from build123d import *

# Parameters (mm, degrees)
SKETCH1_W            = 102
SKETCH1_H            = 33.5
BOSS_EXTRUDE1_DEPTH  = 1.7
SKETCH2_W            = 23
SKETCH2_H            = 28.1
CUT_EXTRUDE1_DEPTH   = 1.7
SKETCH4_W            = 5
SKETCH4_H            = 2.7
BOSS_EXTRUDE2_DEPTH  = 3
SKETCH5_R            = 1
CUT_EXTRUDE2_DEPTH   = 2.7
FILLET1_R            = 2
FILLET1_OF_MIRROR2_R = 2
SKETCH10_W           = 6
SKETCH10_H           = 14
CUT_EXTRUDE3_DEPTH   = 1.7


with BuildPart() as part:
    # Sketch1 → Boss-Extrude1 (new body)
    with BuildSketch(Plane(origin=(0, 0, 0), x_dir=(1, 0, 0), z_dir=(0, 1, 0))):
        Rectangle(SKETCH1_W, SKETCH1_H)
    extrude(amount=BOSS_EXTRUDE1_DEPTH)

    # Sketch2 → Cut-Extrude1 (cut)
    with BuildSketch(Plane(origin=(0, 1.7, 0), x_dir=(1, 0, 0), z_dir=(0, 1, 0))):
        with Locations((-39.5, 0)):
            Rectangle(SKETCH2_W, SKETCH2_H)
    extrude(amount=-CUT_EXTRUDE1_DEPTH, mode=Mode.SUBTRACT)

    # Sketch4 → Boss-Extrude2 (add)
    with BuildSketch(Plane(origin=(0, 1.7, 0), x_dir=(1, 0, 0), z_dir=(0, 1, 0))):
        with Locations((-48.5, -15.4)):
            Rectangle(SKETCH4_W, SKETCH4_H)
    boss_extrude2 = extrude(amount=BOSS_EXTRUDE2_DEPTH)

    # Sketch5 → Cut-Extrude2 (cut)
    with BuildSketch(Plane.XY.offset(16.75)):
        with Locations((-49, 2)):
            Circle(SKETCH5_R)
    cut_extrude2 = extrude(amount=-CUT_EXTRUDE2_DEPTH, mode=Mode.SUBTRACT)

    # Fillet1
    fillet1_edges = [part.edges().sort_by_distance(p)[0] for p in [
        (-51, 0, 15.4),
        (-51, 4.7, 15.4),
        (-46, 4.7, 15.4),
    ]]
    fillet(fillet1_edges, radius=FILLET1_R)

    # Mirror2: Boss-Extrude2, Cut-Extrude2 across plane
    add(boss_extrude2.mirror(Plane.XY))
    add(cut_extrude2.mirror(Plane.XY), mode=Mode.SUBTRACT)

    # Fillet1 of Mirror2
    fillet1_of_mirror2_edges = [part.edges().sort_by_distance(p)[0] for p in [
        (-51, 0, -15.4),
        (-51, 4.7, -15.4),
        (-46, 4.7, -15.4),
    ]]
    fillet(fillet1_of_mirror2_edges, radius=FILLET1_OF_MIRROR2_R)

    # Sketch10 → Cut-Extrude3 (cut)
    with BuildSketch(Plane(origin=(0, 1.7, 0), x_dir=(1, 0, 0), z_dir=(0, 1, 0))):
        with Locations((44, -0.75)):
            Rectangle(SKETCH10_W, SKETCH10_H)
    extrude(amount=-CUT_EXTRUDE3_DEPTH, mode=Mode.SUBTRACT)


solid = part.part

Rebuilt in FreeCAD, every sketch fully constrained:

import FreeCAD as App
import Part
import Sketcher
from FreeCAD import Vector
Q = App.Units.Quantity


def edges_at(feature, points):
    """Names of the edges that pass closest to the given points."""
    edges = feature.Shape.Edges
    near = lambda p: min(range(len(edges)), key=lambda i: edges[i].distToShape(Part.Vertex(*p))[0])
    return sorted({f"Edge{near(p) + 1}" for p in points})


def add_polygon(sketch, points):
    """Adds a closed chain of lines whose ends are joined by coincident constraints."""
    first, n = sketch.GeometryCount, len(points)
    for a, b in zip(points, points[1:] + points[:1]):
        sketch.addGeometry(Part.LineSegment(App.Vector(*a, 0), App.Vector(*b, 0)), False)
    for i in range(n):
        sketch.addConstraint(Sketcher.Constraint("Coincident", first + i, 2, first + (i + 1) % n, 1))

doc = App.newDocument("Part")
body = doc.addObject("PartDesign::Body", "Body")

# Sketch on XZ plane
sketch1 = body.newObject("Sketcher::SketchObject", "Sketch")
sketch1.AttachmentSupport = (doc.getObject("XZ_Plane"), [""])
sketch1.MapMode = "FlatFace"
add_polygon(sketch1, [(-51, -16.75), (-51, 16.75), (51, 16.75), (51, -16.75)])  # lines 0-3
sketch1.addConstraint(Sketcher.Constraint("Vertical", 0))
sketch1.addConstraint(Sketcher.Constraint("Horizontal", 1))
sketch1.addConstraint(Sketcher.Constraint("Vertical", 2))
sketch1.addConstraint(Sketcher.Constraint("Horizontal", 3))
sketch1.addConstraint(Sketcher.Constraint("Symmetric", 0, 2, 2, 2, -1, 1))
sketch1.addConstraint(Sketcher.Constraint("DistanceX", 1, 1, 1, 2, Q("102 mm")))
sketch1.addConstraint(Sketcher.Constraint("DistanceY", 0, 1, 0, 2, Q("33.5 mm")))
pad1 = body.newObject("PartDesign::Pad", "Pad")
pad1.Profile = sketch1
pad1.Length = 1.7
pad1.Reversed = True

# Sketch on XZ plane
sketch2 = body.newObject("Sketcher::SketchObject", "Sketch001")
sketch2.AttachmentSupport = (doc.getObject("XZ_Plane"), [""])
sketch2.MapMode = "FlatFace"
sketch2.AttachmentOffset = App.Placement(Vector(0, 0, -1.7), App.Rotation())
add_polygon(sketch2, [(-51, -14.05), (-51, 14.05), (-28, 14.05), (-28, -14.05)])  # lines 0-3
sketch2.addConstraint(Sketcher.Constraint("Vertical", 0))
sketch2.addConstraint(Sketcher.Constraint("Horizontal", 1))
sketch2.addConstraint(Sketcher.Constraint("Vertical", 2))
sketch2.addConstraint(Sketcher.Constraint("Horizontal", 3))
sketch2.addConstraint(Sketcher.Constraint("DistanceX", 1, 1, 1, 2, Q("23 mm")))
sketch2.addConstraint(Sketcher.Constraint("DistanceY", 0, 1, 0, 2, Q("28.1 mm")))
sketch2.addConstraint(Sketcher.Constraint("DistanceX", 0, 2, -1, 1, Q("51 mm")))
sketch2.addConstraint(Sketcher.Constraint("DistanceY", -1, 1, 0, 2, Q("14.05 mm")))
pocket1 = body.newObject("PartDesign::Pocket", "Pocket")
pocket1.Profile = sketch2
pocket1.Length = 1.7
pocket1.Reversed = True

# Sketch on XZ plane
sketch3 = body.newObject("Sketcher::SketchObject", "Sketch002")
sketch3.AttachmentSupport = (doc.getObject("XZ_Plane"), [""])
sketch3.MapMode = "FlatFace"
sketch3.AttachmentOffset = App.Placement(Vector(0, 0, -1.7), App.Rotation())
add_polygon(sketch3, [(-51, 14.05), (-51, 16.75), (-46, 16.75), (-46, 14.05)])  # lines 0-3
sketch3.addConstraint(Sketcher.Constraint("Vertical", 0))
sketch3.addConstraint(Sketcher.Constraint("Horizontal", 1))
sketch3.addConstraint(Sketcher.Constraint("Vertical", 2))
sketch3.addConstraint(Sketcher.Constraint("Horizontal", 3))
sketch3.addConstraint(Sketcher.Constraint("DistanceX", 1, 1, 1, 2, Q("5 mm")))
sketch3.addConstraint(Sketcher.Constraint("DistanceY", 0, 1, 0, 2, Q("2.7 mm")))
sketch3.addConstraint(Sketcher.Constraint("DistanceX", 0, 2, -1, 1, Q("51 mm")))
sketch3.addConstraint(Sketcher.Constraint("DistanceY", -1, 1, 0, 2, Q("16.75 mm")))
pad2 = body.newObject("PartDesign::Pad", "Pad001")
pad2.Profile = sketch3
pad2.Length = 3
pad2.Reversed = True

# Sketch on XY plane
sketch4 = body.newObject("Sketcher::SketchObject", "Sketch003")
sketch4.AttachmentSupport = (doc.getObject("XY_Plane"), [""])
sketch4.MapMode = "FlatFace"
sketch4.AttachmentOffset = App.Placement(Vector(0, 0, 16.75), App.Rotation())
sketch4.addGeometry(Part.Circle(Vector(-49, 2, 0), Vector(0, 0, 1), 1), False)
sketch4.addConstraint(Sketcher.Constraint("Diameter", 0, Q("2 mm")))
sketch4.addConstraint(Sketcher.Constraint("DistanceX", 0, 3, -1, 1, Q("49 mm")))
sketch4.addConstraint(Sketcher.Constraint("DistanceY", -1, 1, 0, 3, Q("2 mm")))
pocket2 = body.newObject("PartDesign::Pocket", "Pocket001")
pocket2.Profile = sketch4
pocket2.Length = 2.7
doc.recompute()

fillet = body.newObject("PartDesign::Fillet", "Fillet")
fillet.Base = (pocket2, edges_at(pocket2, [(-51, 0, 15.4), (-51, 4.7, 15.4), (-46, 4.7, 15.4)]))
fillet.Radius = 2
doc.recompute()

mirrored = body.newObject("PartDesign::Mirrored", "Mirrored")
mirrored.Originals = [pad2, pocket2]
mirrored.MirrorPlane = (doc.getObject("XY_Plane"), [""])
body.Tip = mirrored
doc.recompute()

fillet2 = body.newObject("PartDesign::Fillet", "Fillet001")
fillet2.Base = (mirrored, edges_at(mirrored, [(-51, 0, -15.4), (-51, 4.7, -15.4), (-46, 4.7, -15.4)]))
fillet2.Radius = 2

# Sketch on XZ plane
sketch5 = body.newObject("Sketcher::SketchObject", "Sketch004")
sketch5.AttachmentSupport = (doc.getObject("XZ_Plane"), [""])
sketch5.MapMode = "FlatFace"
sketch5.AttachmentOffset = App.Placement(Vector(0, 0, -1.7), App.Rotation())
add_polygon(sketch5, [(41, -6.25), (41, 7.75), (47, 7.75), (47, -6.25)])  # lines 0-3
sketch5.addConstraint(Sketcher.Constraint("Vertical", 0))
sketch5.addConstraint(Sketcher.Constraint("Horizontal", 1))
sketch5.addConstraint(Sketcher.Constraint("Vertical", 2))
sketch5.addConstraint(Sketcher.Constraint("Horizontal", 3))
sketch5.addConstraint(Sketcher.Constraint("DistanceX", 1, 1, 1, 2, Q("6 mm")))
sketch5.addConstraint(Sketcher.Constraint("DistanceY", 0, 1, 0, 2, Q("14 mm")))
sketch5.addConstraint(Sketcher.Constraint("DistanceX", -1, 1, 0, 2, Q("41 mm")))
sketch5.addConstraint(Sketcher.Constraint("DistanceY", -1, 1, 0, 2, Q("7.75 mm")))
pocket3 = body.newObject("PartDesign::Pocket", "Pocket002")
pocket3.Profile = sketch5
pocket3.Length = 1.7
pocket3.Reversed = True

doc.recompute()
